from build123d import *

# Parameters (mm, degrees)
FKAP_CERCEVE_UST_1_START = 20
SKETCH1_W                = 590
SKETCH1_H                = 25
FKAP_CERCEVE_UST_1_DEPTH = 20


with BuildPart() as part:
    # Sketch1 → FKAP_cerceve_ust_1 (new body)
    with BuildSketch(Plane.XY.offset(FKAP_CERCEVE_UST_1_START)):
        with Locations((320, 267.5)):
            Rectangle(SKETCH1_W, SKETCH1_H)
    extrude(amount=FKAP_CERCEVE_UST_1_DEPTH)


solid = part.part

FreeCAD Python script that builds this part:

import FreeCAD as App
import Part
import Sketcher

V = App.Vector


def add_polygon(sketch, points):
    """Adds a closed chain of lines whose ends are joined by coincident constraints."""
    first, n = sketch.GeometryCount, len(points)
    for a, b in zip(points, points[1:] + points[:1]):
        sketch.addGeometry(Part.LineSegment(App.Vector(*a, 0), App.Vector(*b, 0)), False)
    for i in range(n):
        sketch.addConstraint(Sketcher.Constraint("Coincident", first + i, 2, first + (i + 1) % n, 1))

doc = App.newDocument("Part")
params = doc.addObject("Spreadsheet::Sheet", "Params")
for row, (alias, value) in enumerate([
    ("sketch1_width", "590 mm"),
    ("sketch1_height", "25 mm"),
    ("pad1_length", "20 mm"),
], start=1):
    params.set(f"A{row}", alias)
    params.set(f"B{row}", "=" + value)
    params.setAlias(f"B{row}", alias)

body = doc.addObject("PartDesign::Body", "Body")

# Sketch on XY plane
sketch1 = body.newObject("Sketcher::SketchObject", "Sketch")
sketch1.AttachmentSupport = (doc.getObject("XY_Plane"), [""])
sketch1.MapMode = "FlatFace"
sketch1.AttachmentOffset = App.Placement(V(0, 0, 20), App.Rotation())
add_polygon(sketch1, [(25, 280), (25, 255), (615, 255), (615, 280)])  # lines 0-3
sketch1.addConstraint([
    Sketcher.Constraint("Vertical", 0),
    Sketcher.Constraint("Horizontal", 1),
    Sketcher.Constraint("Vertical", 2),
    Sketcher.Constraint("Horizontal", 3),
    Sketcher.Constraint("DistanceX", 1, 1, 1, 2, 590.0),
    Sketcher.Constraint("DistanceY", 0, 2, 0, 1, 25.0),
    Sketcher.Constraint("DistanceX", -1, 1, 0, 2, 25.0),
    Sketcher.Constraint("DistanceY", -1, 1, 0, 2, 255.0),
])
sketch1.setExpression("Constraints[8]", "Params.sketch1_width")
sketch1.setExpression("Constraints[9]", "Params.sketch1_height")
pad1 = body.newObject("PartDesign::Pad", "Pad")
pad1.Profile = sketch1
pad1.setExpression("Length", "Params.pad1_length")

doc.recompute()
